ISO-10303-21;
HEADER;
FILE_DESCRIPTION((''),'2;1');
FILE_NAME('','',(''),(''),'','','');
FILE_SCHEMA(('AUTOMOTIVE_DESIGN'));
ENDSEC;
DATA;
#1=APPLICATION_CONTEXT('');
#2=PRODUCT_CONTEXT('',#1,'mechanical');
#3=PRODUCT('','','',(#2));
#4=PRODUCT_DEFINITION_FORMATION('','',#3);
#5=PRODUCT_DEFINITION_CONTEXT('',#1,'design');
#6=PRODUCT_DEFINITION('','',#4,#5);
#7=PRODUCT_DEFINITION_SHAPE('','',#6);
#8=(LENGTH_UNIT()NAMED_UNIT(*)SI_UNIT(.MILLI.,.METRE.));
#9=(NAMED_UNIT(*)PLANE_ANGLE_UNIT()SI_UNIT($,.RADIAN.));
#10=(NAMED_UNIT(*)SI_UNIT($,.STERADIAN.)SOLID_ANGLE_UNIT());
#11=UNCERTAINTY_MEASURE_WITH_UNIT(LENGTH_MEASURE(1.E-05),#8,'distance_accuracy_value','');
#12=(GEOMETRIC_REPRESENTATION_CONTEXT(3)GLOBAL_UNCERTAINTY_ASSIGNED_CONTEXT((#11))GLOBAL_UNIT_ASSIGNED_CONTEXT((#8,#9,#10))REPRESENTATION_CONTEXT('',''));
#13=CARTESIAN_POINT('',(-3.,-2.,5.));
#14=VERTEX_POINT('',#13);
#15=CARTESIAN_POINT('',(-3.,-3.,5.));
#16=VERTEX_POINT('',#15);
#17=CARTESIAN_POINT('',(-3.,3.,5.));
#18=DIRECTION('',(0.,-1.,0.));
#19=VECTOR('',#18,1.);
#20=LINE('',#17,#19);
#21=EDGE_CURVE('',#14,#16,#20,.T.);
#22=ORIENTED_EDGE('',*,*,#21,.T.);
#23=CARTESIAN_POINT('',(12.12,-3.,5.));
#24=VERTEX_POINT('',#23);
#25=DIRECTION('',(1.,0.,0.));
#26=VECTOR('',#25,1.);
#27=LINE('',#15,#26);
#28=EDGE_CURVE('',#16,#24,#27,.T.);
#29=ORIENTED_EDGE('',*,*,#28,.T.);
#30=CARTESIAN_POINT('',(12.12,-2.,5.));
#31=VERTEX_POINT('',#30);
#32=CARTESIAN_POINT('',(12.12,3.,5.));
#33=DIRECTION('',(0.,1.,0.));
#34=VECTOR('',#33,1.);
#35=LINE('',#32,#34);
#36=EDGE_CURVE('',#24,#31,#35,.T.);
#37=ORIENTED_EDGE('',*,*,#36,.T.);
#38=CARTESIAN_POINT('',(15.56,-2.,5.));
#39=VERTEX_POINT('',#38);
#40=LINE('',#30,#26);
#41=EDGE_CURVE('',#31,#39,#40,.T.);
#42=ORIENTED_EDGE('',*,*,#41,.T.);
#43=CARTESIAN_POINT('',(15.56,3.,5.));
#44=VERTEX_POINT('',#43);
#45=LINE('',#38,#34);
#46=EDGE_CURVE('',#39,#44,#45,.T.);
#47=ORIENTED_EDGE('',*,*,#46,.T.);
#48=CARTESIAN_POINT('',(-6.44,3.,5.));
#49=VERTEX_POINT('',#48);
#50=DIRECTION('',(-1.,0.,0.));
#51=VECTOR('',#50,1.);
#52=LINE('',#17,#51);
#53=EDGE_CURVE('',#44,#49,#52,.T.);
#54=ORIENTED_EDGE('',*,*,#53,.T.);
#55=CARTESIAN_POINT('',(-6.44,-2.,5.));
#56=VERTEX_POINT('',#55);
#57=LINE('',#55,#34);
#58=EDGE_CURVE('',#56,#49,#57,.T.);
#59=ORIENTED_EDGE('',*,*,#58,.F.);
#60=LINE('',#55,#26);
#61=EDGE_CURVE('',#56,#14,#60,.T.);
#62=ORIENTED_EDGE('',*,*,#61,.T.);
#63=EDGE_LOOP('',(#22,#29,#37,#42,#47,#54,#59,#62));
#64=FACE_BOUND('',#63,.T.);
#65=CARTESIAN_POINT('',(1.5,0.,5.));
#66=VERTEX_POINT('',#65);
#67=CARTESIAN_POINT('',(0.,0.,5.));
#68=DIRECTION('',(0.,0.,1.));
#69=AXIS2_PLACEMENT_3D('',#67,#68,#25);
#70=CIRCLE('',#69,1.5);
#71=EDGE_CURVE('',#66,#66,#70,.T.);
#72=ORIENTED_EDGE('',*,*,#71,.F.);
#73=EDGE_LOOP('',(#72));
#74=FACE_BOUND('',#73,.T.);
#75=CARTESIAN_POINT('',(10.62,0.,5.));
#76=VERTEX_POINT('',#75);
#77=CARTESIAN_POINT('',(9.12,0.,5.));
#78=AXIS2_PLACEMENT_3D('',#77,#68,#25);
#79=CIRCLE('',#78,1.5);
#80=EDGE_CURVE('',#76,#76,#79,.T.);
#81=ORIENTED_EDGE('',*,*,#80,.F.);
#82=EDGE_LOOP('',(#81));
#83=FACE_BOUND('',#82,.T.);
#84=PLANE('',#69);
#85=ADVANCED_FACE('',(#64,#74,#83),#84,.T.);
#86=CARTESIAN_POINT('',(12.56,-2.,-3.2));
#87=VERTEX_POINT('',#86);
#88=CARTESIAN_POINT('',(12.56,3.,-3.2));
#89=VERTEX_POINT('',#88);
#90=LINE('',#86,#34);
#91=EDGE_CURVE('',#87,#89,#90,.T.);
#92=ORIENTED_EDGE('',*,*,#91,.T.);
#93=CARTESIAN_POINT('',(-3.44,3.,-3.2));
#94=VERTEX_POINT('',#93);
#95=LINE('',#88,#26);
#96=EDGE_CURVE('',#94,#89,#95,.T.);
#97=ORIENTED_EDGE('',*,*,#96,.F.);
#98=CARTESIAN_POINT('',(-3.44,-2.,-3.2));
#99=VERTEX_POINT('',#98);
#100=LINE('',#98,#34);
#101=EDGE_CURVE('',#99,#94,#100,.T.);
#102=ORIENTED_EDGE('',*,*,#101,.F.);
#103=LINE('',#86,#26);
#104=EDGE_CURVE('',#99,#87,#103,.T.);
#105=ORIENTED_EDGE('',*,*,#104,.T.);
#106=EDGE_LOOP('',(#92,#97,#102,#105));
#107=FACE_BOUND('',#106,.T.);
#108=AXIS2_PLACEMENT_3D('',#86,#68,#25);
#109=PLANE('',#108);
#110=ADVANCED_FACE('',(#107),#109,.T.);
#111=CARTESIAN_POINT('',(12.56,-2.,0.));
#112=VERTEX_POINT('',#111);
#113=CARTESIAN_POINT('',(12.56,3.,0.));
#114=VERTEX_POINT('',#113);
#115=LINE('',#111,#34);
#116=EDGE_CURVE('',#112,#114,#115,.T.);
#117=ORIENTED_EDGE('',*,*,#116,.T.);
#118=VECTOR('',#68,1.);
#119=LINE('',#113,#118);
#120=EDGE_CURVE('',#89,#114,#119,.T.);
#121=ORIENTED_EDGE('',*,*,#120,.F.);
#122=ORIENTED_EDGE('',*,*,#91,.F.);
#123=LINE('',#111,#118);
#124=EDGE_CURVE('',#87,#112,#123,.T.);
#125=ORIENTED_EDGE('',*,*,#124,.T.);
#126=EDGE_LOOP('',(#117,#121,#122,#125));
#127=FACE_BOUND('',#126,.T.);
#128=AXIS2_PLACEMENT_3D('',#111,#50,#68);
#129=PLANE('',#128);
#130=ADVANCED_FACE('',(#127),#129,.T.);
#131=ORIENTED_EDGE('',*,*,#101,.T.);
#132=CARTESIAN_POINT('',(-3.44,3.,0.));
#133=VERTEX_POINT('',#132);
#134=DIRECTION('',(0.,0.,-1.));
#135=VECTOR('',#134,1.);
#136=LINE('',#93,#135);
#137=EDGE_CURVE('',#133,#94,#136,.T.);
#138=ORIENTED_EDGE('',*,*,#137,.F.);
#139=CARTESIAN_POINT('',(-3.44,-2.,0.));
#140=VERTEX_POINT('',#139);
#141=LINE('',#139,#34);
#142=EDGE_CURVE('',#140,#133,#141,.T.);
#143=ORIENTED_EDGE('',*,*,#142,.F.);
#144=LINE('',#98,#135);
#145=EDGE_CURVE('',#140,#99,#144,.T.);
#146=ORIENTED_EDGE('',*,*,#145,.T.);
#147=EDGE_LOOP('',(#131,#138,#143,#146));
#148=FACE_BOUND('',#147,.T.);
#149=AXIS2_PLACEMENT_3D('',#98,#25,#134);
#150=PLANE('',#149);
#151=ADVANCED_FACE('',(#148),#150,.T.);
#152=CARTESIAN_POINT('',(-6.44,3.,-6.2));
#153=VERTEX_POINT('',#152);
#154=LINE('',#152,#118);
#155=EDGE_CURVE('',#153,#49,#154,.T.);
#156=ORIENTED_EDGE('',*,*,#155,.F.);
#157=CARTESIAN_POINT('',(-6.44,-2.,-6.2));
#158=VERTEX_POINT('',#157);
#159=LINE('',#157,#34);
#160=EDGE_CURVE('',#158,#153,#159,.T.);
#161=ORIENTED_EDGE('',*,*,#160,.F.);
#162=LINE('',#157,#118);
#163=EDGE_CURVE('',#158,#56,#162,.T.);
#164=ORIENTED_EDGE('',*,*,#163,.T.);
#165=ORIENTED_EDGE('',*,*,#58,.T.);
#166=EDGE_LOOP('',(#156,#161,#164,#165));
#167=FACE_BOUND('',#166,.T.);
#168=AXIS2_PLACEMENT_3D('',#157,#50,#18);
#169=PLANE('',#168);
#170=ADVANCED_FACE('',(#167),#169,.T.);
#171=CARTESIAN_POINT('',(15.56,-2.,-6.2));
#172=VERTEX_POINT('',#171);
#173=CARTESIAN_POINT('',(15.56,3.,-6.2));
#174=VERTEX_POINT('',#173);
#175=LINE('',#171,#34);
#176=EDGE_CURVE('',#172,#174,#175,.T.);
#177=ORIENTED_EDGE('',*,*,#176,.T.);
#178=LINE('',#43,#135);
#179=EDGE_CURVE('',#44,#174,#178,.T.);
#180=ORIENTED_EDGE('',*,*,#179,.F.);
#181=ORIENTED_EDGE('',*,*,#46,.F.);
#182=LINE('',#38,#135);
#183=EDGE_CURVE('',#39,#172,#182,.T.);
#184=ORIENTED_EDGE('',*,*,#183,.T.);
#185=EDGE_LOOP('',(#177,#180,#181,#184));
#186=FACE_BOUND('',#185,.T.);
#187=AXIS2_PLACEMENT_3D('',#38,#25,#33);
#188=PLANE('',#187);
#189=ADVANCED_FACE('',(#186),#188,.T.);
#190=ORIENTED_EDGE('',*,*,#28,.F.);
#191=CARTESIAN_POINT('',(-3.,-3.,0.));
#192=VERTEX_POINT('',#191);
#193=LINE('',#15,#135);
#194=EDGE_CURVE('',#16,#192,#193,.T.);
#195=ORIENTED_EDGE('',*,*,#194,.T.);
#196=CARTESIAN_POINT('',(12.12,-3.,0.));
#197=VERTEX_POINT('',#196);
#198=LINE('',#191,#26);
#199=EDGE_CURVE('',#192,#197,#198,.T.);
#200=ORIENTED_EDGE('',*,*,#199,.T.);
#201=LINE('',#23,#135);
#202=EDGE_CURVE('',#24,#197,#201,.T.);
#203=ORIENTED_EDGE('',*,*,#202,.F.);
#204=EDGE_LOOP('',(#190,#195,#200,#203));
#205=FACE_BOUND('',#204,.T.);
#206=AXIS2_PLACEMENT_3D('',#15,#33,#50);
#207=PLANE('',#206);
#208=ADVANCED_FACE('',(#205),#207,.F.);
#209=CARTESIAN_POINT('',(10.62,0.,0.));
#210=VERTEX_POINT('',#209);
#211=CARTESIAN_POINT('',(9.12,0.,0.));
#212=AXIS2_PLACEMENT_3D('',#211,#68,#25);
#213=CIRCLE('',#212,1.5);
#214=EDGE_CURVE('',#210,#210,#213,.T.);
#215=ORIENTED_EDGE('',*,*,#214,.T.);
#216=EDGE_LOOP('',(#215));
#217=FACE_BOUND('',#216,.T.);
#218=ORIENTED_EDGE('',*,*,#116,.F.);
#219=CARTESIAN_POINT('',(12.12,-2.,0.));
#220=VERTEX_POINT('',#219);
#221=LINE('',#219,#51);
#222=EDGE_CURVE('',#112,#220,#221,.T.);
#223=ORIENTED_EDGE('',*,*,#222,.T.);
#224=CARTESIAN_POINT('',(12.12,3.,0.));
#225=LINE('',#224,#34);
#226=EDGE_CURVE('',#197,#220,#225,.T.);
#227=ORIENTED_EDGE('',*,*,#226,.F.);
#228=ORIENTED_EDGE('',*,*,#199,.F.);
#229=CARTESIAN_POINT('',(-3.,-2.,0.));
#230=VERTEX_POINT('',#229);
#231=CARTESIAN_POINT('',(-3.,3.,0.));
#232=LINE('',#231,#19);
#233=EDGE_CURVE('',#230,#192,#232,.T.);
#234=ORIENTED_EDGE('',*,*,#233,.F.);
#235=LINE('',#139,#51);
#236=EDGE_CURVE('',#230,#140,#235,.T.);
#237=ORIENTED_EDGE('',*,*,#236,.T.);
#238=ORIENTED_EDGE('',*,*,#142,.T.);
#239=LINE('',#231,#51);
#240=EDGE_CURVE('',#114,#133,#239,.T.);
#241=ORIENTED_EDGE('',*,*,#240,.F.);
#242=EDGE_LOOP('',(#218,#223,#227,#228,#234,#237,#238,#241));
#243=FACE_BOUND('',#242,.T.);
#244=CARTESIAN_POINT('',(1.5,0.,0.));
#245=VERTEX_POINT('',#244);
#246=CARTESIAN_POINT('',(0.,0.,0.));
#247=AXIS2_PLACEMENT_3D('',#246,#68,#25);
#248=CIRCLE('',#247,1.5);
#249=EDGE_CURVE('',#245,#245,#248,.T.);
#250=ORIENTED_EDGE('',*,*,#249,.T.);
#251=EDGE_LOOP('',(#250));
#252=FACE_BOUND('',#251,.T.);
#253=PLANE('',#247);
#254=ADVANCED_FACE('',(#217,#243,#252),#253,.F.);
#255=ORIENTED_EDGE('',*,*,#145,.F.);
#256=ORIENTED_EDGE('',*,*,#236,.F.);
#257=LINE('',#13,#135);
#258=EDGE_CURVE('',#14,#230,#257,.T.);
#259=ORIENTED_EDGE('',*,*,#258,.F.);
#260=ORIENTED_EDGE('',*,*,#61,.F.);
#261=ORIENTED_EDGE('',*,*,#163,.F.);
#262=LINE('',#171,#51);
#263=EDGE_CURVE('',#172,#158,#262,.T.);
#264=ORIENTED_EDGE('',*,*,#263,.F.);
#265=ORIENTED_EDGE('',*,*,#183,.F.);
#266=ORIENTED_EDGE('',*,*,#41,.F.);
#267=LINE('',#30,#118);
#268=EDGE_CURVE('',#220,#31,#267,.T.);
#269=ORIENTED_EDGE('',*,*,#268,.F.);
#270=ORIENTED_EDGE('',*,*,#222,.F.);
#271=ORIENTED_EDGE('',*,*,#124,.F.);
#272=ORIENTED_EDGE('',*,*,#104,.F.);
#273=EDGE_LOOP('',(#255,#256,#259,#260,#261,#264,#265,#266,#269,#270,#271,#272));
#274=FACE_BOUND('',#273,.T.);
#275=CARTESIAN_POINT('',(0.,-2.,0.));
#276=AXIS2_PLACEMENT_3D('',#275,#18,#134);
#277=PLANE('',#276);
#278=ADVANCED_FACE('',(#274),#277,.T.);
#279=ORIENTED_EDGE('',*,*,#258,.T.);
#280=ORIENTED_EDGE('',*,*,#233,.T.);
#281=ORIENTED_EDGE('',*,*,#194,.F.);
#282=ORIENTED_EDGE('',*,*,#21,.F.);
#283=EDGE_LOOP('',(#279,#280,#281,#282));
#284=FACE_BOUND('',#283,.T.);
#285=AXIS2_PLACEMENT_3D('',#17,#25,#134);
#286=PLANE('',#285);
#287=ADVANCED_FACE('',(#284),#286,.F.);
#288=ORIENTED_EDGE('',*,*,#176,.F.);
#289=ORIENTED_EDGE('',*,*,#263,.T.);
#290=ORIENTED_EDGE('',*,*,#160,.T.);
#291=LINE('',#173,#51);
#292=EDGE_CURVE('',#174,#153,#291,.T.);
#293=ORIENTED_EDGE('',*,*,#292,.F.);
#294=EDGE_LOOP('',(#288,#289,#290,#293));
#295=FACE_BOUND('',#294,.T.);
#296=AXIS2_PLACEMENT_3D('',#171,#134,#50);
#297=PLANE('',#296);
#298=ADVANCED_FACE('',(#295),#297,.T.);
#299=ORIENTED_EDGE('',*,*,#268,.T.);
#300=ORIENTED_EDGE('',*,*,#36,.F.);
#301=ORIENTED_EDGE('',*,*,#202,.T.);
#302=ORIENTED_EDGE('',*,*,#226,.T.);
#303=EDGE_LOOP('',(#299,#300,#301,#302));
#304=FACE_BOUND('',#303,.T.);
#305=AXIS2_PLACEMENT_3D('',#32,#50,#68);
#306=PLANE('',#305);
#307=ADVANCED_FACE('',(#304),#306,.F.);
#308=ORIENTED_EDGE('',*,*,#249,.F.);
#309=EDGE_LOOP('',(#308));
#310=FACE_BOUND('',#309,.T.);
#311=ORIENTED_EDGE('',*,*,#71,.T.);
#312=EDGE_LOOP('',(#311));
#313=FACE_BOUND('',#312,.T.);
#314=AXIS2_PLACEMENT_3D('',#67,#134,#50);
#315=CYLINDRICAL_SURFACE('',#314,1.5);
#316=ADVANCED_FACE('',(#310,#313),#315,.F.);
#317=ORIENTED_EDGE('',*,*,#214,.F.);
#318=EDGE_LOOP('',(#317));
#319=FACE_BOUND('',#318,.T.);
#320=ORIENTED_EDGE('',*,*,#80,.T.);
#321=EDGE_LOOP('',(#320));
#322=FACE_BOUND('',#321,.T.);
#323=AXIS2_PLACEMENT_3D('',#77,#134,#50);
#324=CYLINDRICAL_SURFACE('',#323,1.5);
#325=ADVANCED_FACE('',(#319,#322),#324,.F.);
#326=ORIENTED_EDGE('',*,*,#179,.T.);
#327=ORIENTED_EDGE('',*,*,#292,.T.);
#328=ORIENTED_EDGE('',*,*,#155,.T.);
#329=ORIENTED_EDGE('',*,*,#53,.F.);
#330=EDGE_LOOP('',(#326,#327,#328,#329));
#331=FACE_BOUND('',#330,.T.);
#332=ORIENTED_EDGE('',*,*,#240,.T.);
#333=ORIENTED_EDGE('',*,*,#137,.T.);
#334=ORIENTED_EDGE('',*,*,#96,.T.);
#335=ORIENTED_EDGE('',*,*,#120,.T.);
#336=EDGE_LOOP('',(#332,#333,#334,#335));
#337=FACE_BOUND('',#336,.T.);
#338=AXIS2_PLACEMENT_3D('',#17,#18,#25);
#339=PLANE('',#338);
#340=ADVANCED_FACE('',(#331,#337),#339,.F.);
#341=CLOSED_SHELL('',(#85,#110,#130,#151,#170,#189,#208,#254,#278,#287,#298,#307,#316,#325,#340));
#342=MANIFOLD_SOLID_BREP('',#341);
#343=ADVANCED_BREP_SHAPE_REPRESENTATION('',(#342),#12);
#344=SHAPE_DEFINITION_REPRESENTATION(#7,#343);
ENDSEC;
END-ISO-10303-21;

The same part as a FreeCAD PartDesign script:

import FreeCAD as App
import Part
import Sketcher
from FreeCAD import Vector


def add_polygon(sketch, points):
    """Adds a closed chain of lines whose ends are joined by coincident constraints."""
    first, n = sketch.GeometryCount, len(points)
    for a, b in zip(points, points[1:] + points[:1]):
        sketch.addGeometry(Part.LineSegment(App.Vector(*a, 0), App.Vector(*b, 0)), False)
    for i in range(n):
        sketch.addConstraint(Sketcher.Constraint("Coincident", first + i, 2, first + (i + 1) % n, 1))

doc = App.newDocument("Part")
body = doc.addObject("PartDesign::Body", "Body")

# Sketch on XY plane
sketch1 = doc.addObject("Sketcher::SketchObject", "Sketch")
body.addObject(sketch1)
sketch1.AttachmentSupport = (doc.XY_Plane, [""])
sketch1.MapMode = "FlatFace"
add_polygon(sketch1, [(-3, 3), (-3, -3), (12.1, -3), (12.1, 3)])  # lines 0-3
sketch1.addGeometry(Part.Circle(Vector(0, 0, 0), Vector(0, 0, 1), 1.5), False)  # 4
sketch1.addGeometry(Part.Circle(Vector(9.1, 0, 0), Vector(0, 0, 1), 1.5), False)  # 5
sketch1.addConstraint([
    Sketcher.Constraint("Vertical", 0),
    Sketcher.Constraint("Horizontal", 1),
    Sketcher.Constraint("Vertical", 2),
    Sketcher.Constraint("Horizontal", 3),
    Sketcher.Constraint("Coincident", 4, 3, -1, 1),
    Sketcher.Constraint("Equal", 4, 5),
    Sketcher.Constraint("PointOnObject", 5, 3, -1),
    Sketcher.Constraint("Diameter", 4, 3.0),
    Sketcher.Constraint("DistanceY", 0, 2, 0, 1, 6.0),
    Sketcher.Constraint("DistanceX", 0, 2, -1, 1, 3.0),
    Sketcher.Constraint("DistanceY", 0, 2, -1, 1, 3.0),
    Sketcher.Constraint("DistanceX", 5, 3, 1, 2, 3.0),
    Sketcher.Constraint("DistanceX", 1, 1, 1, 2, 15.12),
])
pad1 = doc.addObject("PartDesign::Pad", "Pad")
body.addObject(pad1)
pad1.Profile = sketch1
pad1.Length = 5

# Sketch on XZ plane
sketch2 = doc.addObject("Sketcher::SketchObject", "Sketch001")
body.addObject(sketch2)
sketch2.AttachmentSupport = (doc.XZ_Plane, [""])
sketch2.MapMode = "FlatFace"
sketch2.AttachmentOffset = App.Placement(Vector(0, 0, -3), App.Rotation())
add_polygon(sketch2, [(12.12, 5), (15.56, 5), (15.56, -6.2), (-6.44, -6.2), (-6.44, 5), (-3, 5), (-3, 0), (-3.44, 0), (-3.44, -3.2), (12.56, -3.2), (12.56, 0), (12.12, 0)])  # lines 0-11
sketch2.addConstraint([
    Sketcher.Constraint("Horizontal", 0),
    Sketcher.Constraint("Vertical", 1),
    Sketcher.Constraint("Horizontal", 2),
    Sketcher.Constraint("Vertical", 3),
    Sketcher.Constraint("Horizontal", 4),
    Sketcher.Constraint("Vertical", 5),
    Sketcher.Constraint("Horizontal", 6),
    Sketcher.Constraint("Vertical", 7),
    Sketcher.Constraint("Horizontal", 8),
    Sketcher.Constraint("Vertical", 9),
    Sketcher.Constraint("Horizontal", 10),
    Sketcher.Constraint("Vertical", 11),
    Sketcher.Constraint("PointOnObject", 5, 2, -1),
    Sketcher.Constraint("PointOnObject", 9, 2, -1),
    Sketcher.Constraint("Horizontal", 0, 2, 3, 2),
    Sketcher.Constraint("Equal", 0, 4),
    Sketcher.Constraint("Equal", 6, 10),
    Sketcher.Constraint("DistanceX", 2, 2, 2, 1, 22.0),
    Sketcher.Constraint("DistanceX", 8, 1, 8, 2, 16.0),
    Sketcher.Constraint("DistanceY", 5, 2, 5, 1, 5.0),
    Sketcher.Constraint("DistanceY", 1, 2, 1, 1, 11.2),
    Sketcher.Constraint("DistanceY", 7, 2, 7, 1, 3.2),
    Sketcher.Constraint("DistanceX", 4, 2, -1, 1, 3.0),
    Sketcher.Constraint("DistanceX", 0, 1, 0, 2, 3.44),
])
pad2 = doc.addObject("PartDesign::Pad", "Pad001")
body.addObject(pad2)
pad2.Profile = sketch2
pad2.Length = 5

doc.recompute()
